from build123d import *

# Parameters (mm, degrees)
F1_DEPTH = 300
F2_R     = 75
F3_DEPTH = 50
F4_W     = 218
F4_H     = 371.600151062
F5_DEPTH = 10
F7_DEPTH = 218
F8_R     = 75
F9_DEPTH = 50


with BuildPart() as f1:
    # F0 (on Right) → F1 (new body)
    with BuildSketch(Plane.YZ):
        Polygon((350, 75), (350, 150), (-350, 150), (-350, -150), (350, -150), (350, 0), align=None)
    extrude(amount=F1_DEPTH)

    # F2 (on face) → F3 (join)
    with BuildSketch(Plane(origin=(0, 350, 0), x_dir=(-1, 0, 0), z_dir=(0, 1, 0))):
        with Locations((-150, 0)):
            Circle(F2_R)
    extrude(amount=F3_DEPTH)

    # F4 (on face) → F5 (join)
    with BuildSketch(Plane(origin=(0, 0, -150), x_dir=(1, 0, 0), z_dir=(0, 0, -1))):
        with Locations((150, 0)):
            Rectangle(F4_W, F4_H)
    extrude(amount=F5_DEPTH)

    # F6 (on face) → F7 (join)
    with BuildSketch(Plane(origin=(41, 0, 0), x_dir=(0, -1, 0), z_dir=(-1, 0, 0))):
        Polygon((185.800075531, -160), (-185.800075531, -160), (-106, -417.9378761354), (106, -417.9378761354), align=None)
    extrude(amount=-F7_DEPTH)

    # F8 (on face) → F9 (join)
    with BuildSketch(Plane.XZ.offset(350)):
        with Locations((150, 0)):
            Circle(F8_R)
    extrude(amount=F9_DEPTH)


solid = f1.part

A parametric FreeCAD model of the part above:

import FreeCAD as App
import Part
import Sketcher
Q = App.Units.Quantity

doc = App.newDocument("Part")
body = doc.addObject("PartDesign::Body", "Body")

sketch1 = body.newObject("Sketcher::SketchObject", "Sketch")
sketch1.AttachmentSupport = (doc.getObject("YZ_Plane"), [""])
sketch1.MapMode = "FlatFace"
sketch1.addGeometry(Part.LineSegment(App.Vector(350, 150, 0), App.Vector(-350, 150, 0)), False)
sketch1.addGeometry(Part.LineSegment(App.Vector(-350, 150, 0), App.Vector(-350, -150, 0)), False)
sketch1.addGeometry(Part.LineSegment(App.Vector(-350, -150, 0), App.Vector(350, -150, 0)), False)
sketch1.addGeometry(Part.LineSegment(App.Vector(350, -150, 0), App.Vector(350, 150, 0)), False)
sketch1.addConstraint(Sketcher.Constraint("Coincident", 0, 2, 1, 1))
sketch1.addConstraint(Sketcher.Constraint("Coincident", 1, 2, 2, 1))
sketch1.addConstraint(Sketcher.Constraint("Coincident", 2, 2, 3, 1))
sketch1.addConstraint(Sketcher.Constraint("Coincident", 3, 2, 0, 1))
sketch1.addConstraint(Sketcher.Constraint("Horizontal", 0))
sketch1.addConstraint(Sketcher.Constraint("Vertical", 1))
sketch1.addConstraint(Sketcher.Constraint("Horizontal", 2))
sketch1.addConstraint(Sketcher.Constraint("Vertical", 3))
sketch1.addConstraint(Sketcher.Constraint("Symmetric", 0, 2, 2, 2, -1, 1))
sketch1.addConstraint(Sketcher.Constraint("DistanceX", 0, 2, 0, 1, Q("700 mm")))
sketch1.addConstraint(Sketcher.Constraint("DistanceY", 1, 2, 1, 1, Q("300 mm")))
pad1 = body.newObject("PartDesign::Pad", "Pad")
pad1.Profile = sketch1
pad1.Length = 300

sketch2 = body.newObject("Sketcher::SketchObject", "Sketch001")
sketch2.AttachmentSupport = (doc.getObject("XZ_Plane"), [""])
sketch2.MapMode = "FlatFace"
sketch2.AttachmentOffset = App.Placement(App.Vector(0, 0, -350), App.Rotation())
sketch2.addGeometry(Part.Circle(App.Vector(150, 0, 0), App.Vector(0, 0, 1), 75), False)
sketch2.addConstraint(Sketcher.Constraint("PointOnObject", 0, 3, -1))
sketch2.addConstraint(Sketcher.Constraint("Diameter", 0, Q("150 mm")))
sketch2.addConstraint(Sketcher.Constraint("DistanceX", -1, 1, 0, 3, Q("150 mm")))
pad2 = body.newObject("PartDesign::Pad", "Pad001")
pad2.Profile = sketch2
pad2.Length = 50
pad2.Reversed = True

sketch3 = body.newObject("Sketcher::SketchObject", "Sketch002")
sketch3.AttachmentSupport = (doc.getObject("XY_Plane"), [""])
sketch3.MapMode = "FlatFace"
sketch3.AttachmentOffset = App.Placement(App.Vector(0, 0, -150), App.Rotation())
sketch3.addGeometry(Part.LineSegment(App.Vector(41, -186, 0), App.Vector(41, 186, 0)), False)
sketch3.addGeometry(Part.LineSegment(App.Vector(41, 186, 0), App.Vector(259, 186, 0)), False)
sketch3.addGeometry(Part.LineSegment(App.Vector(259, 186, 0), App.Vector(259, -186, 0)), False)
sketch3.addGeometry(Part.LineSegment(App.Vector(259, -186, 0), App.Vector(41, -186, 0)), False)
sketch3.addConstraint(Sketcher.Constraint("Coincident", 0, 2, 1, 1))
sketch3.addConstraint(Sketcher.Constraint("Coincident", 1, 2, 2, 1))
sketch3.addConstraint(Sketcher.Constraint("Coincident", 2, 2, 3, 1))
sketch3.addConstraint(Sketcher.Constraint("Coincident", 3, 2, 0, 1))
sketch3.addConstraint(Sketcher.Constraint("Vertical", 0))
sketch3.addConstraint(Sketcher.Constraint("Horizontal", 1))
sketch3.addConstraint(Sketcher.Constraint("Vertical", 2))
sketch3.addConstraint(Sketcher.Constraint("Horizontal", 3))
sketch3.addConstraint(Sketcher.Constraint("DistanceX", 1, 1, 1, 2, Q("218 mm")))
sketch3.addConstraint(Sketcher.Constraint("DistanceX", -1, 1, 0, 2, Q("41 mm")))
sketch3.addConstraint(Sketcher.Constraint("DistanceY", 0, 1, 0, 2, Q("371.600151 mm")))
sketch3.addConstraint(Sketcher.Constraint("DistanceY", -1, 1, 0, 2, Q("185.800076 mm")))
pad3 = body.newObject("PartDesign::Pad", "Pad002")
pad3.Profile = sketch3
pad3.Length = 10
pad3.Reversed = True

sketch4 = body.newObject("Sketcher::SketchObject", "Sketch003")
sketch4.AttachmentSupport = (doc.getObject("YZ_Plane"), [""])
sketch4.MapMode = "FlatFace"
sketch4.AttachmentOffset = App.Placement(App.Vector(0, 0, 41), App.Rotation())
sketch4.addGeometry(Part.LineSegment(App.Vector(-186, -160, 0), App.Vector(186, -160, 0)), False)
sketch4.addGeometry(Part.LineSegment(App.Vector(186, -160, 0), App.Vector(106, -418, 0)), False)
sketch4.addGeometry(Part.LineSegment(App.Vector(106, -418, 0), App.Vector(-106, -418, 0)), False)
sketch4.addGeometry(Part.LineSegment(App.Vector(-106, -418, 0), App.Vector(-186, -160, 0)), False)
sketch4.addConstraint(Sketcher.Constraint("Coincident", 0, 2, 1, 1))
sketch4.addConstraint(Sketcher.Constraint("Coincident", 1, 2, 2, 1))
sketch4.addConstraint(Sketcher.Constraint("Coincident", 2, 2, 3, 1))
sketch4.addConstraint(Sketcher.Constraint("Coincident", 3, 2, 0, 1))
sketch4.addConstraint(Sketcher.Constraint("Horizontal", 0))
sketch4.addConstraint(Sketcher.Constraint("Horizontal", 2))
sketch4.addConstraint(Sketcher.Constraint("Equal", 1, 3))
sketch4.addConstraint(Sketcher.Constraint("DistanceX", 2, 2, 2, 1, Q("212 mm")))
sketch4.addConstraint(Sketcher.Constraint("Distance", 1, Q("270 mm")))
sketch4.addConstraint(Sketcher.Constraint("DistanceY", 0, 2, -1, 1, Q("160 mm")))
sketch4.addConstraint(Sketcher.Constraint("DistanceX", -1, 1, 1, 2, Q("106 mm")))
sketch4.addConstraint(Sketcher.Constraint("DistanceX", 0, 1, 0, 2, Q("371.600151 mm")))
pad4 = body.newObject("PartDesign::Pad", "Pad003")
pad4.Profile = sketch4
pad4.Length = 218

sketch5 = body.newObject("Sketcher::SketchObject", "Sketch004")
sketch5.AttachmentSupport = (doc.getObject("XZ_Plane"), [""])
sketch5.MapMode = "FlatFace"
sketch5.AttachmentOffset = App.Placement(App.Vector(0, 0, 350), App.Rotation())
sketch5.addGeometry(Part.Circle(App.Vector(150, 0, 0), App.Vector(0, 0, 1), 75), False)
sketch5.addConstraint(Sketcher.Constraint("PointOnObject", 0, 3, -1))
sketch5.addConstraint(Sketcher.Constraint("Diameter", 0, Q("150 mm")))
sketch5.addConstraint(Sketcher.Constraint("DistanceX", -1, 1, 0, 3, Q("150 mm")))
pad5 = body.newObject("PartDesign::Pad", "Pad004")
pad5.Profile = sketch5
pad5.Length = 50

doc.recompute()
